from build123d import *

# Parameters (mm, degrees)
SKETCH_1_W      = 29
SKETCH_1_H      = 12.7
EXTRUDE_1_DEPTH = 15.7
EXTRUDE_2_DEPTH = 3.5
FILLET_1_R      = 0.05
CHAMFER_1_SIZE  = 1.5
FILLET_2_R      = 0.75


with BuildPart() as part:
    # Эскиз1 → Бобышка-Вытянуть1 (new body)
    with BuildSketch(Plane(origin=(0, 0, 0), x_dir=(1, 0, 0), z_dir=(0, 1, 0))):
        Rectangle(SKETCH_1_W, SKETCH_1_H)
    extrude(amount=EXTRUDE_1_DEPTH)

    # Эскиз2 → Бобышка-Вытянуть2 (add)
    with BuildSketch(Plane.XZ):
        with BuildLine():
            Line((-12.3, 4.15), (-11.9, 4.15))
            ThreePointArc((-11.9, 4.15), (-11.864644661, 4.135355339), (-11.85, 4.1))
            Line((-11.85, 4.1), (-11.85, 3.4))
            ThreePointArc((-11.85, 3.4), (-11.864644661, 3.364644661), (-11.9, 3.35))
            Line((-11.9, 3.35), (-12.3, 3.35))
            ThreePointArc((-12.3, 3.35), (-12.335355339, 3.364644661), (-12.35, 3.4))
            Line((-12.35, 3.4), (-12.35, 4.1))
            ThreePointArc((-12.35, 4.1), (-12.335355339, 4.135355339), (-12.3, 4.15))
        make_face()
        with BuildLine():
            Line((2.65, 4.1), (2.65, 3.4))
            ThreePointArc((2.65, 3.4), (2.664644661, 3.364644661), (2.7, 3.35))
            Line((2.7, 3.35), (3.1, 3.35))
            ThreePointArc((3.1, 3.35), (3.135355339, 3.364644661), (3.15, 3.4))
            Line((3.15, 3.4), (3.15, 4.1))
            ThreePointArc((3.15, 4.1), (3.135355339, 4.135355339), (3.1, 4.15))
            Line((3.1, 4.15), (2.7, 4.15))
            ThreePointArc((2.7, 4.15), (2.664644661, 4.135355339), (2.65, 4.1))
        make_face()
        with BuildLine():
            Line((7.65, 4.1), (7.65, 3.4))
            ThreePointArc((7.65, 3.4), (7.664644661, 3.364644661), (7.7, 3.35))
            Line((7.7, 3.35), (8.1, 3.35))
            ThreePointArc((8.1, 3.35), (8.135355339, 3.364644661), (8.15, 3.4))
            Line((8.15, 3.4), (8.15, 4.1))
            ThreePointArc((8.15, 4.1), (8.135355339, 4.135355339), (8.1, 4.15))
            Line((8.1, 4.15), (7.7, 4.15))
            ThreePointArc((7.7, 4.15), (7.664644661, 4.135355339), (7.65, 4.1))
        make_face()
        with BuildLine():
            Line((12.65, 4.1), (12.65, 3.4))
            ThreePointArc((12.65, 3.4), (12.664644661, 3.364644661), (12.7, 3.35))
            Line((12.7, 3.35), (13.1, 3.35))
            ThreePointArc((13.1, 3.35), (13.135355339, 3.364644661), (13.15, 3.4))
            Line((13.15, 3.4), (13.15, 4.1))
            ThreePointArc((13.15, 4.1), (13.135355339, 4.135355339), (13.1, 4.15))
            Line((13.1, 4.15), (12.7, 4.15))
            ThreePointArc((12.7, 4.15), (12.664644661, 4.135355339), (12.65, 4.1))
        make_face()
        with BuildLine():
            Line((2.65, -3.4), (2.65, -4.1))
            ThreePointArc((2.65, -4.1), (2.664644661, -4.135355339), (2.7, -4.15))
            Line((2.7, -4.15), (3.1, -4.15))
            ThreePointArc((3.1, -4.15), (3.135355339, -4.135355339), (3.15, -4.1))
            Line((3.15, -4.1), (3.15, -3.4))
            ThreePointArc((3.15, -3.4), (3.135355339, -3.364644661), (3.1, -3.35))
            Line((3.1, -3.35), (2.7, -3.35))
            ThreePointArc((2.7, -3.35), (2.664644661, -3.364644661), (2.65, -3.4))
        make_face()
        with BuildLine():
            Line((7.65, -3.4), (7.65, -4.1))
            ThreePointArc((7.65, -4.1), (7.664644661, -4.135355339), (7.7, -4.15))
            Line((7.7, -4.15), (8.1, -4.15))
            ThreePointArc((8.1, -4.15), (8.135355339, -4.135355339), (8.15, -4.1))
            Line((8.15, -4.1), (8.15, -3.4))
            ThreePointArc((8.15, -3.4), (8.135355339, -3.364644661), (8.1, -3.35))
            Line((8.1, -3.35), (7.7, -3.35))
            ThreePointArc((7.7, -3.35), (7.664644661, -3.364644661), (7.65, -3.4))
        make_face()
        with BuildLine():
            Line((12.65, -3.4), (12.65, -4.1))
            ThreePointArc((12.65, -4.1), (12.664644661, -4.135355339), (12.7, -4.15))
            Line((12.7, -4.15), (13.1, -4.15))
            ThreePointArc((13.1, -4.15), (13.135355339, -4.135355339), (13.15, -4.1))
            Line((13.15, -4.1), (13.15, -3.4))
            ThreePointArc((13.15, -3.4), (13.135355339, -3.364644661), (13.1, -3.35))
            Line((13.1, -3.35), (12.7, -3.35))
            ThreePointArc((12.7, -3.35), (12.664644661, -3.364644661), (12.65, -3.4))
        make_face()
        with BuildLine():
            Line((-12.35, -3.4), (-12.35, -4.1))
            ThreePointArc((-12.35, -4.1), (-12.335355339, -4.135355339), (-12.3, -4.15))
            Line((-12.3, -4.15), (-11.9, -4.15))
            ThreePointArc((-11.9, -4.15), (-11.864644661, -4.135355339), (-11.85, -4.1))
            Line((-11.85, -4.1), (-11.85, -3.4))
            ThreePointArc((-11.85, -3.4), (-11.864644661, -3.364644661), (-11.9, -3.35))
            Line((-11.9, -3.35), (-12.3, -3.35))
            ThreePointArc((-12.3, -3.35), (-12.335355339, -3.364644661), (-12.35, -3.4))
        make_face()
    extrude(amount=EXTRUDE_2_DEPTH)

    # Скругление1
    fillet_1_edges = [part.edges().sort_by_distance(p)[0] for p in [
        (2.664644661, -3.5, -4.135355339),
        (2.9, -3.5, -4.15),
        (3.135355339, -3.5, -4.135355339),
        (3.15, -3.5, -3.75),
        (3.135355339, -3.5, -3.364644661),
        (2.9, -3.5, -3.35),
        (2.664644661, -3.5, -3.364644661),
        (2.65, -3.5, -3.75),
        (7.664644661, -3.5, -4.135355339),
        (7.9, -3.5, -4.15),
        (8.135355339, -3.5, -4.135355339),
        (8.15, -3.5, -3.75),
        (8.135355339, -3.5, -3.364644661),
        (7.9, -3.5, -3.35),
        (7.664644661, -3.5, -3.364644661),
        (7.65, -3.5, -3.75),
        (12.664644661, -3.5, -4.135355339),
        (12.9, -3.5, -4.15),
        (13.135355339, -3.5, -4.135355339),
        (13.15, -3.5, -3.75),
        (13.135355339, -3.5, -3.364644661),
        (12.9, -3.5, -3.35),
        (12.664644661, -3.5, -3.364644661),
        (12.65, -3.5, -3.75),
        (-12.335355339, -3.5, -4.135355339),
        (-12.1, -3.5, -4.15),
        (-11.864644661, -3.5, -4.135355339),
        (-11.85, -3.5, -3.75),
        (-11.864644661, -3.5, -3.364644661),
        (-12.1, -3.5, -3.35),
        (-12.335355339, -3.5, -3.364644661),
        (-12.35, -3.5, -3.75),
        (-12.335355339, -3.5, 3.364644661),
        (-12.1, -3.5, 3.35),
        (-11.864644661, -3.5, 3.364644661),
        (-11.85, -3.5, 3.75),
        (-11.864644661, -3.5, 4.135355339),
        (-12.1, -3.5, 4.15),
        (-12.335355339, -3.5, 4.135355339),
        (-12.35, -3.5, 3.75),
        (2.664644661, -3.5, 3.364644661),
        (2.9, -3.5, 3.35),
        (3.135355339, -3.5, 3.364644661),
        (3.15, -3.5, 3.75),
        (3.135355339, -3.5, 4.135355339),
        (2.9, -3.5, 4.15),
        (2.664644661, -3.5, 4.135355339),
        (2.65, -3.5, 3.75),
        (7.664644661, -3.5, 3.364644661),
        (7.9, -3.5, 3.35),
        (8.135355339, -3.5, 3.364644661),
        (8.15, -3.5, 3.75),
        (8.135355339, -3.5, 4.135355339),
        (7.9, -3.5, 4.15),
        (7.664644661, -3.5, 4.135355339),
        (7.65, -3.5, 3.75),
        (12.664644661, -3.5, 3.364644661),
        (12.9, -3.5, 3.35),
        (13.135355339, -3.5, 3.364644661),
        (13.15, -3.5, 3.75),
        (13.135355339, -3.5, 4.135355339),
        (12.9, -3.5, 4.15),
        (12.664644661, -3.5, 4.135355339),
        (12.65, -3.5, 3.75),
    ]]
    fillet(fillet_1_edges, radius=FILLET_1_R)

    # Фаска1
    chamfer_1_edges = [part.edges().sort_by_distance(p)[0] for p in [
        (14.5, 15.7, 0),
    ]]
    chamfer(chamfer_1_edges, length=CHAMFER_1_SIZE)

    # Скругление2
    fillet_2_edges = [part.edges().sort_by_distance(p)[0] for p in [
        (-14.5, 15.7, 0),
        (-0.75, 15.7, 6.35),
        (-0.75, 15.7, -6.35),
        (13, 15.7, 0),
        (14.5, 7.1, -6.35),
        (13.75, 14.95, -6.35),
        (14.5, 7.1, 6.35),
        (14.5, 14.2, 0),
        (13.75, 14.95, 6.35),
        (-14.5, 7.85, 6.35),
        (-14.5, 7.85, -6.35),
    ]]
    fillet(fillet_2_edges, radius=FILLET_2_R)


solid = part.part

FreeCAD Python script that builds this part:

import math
import FreeCAD as App
import Part
import Sketcher

V = App.Vector
Q = App.Units.Quantity


def edges_at(feature, points):
    """Names of the edges that pass closest to the given points."""
    edges = feature.Shape.Edges
    near = lambda p: min(range(len(edges)), key=lambda i: edges[i].distToShape(Part.Vertex(*p))[0])
    return sorted({f"Edge{near(p) + 1}" for p in points})


def add_polygon(sketch, points):
    """Adds a closed chain of lines whose ends are joined by coincident constraints."""
    first, n = sketch.GeometryCount, len(points)
    for a, b in zip(points, points[1:] + points[:1]):
        sketch.addGeometry(Part.LineSegment(App.Vector(*a, 0), App.Vector(*b, 0)), False)
    for i in range(n):
        sketch.addConstraint(Sketcher.Constraint("Coincident", first + i, 2, first + (i + 1) % n, 1))

doc = App.newDocument("Part")
body = doc.addObject("PartDesign::Body", "Body")

# Sketch on XZ plane
sketch1 = doc.addObject("Sketcher::SketchObject", "Sketch")
body.addObject(sketch1)
sketch1.AttachmentSupport = (doc.XZ_Plane, [""])
sketch1.MapMode = "FlatFace"
add_polygon(sketch1, [(-14.5, -6.35), (-14.5, 6.35), (14.5, 6.35), (14.5, -6.35)])  # lines 0-3
sketch1.addConstraint([
    Sketcher.Constraint("Vertical", 0),
    Sketcher.Constraint("Horizontal", 1),
    Sketcher.Constraint("Vertical", 2),
    Sketcher.Constraint("Horizontal", 3),
    Sketcher.Constraint("Symmetric", 0, 2, 2, 2, -1, 1),
    Sketcher.Constraint("DistanceX", 1, 1, 1, 2, Q("29 mm")),
    Sketcher.Constraint("DistanceY", 0, 1, 0, 2, Q("12.7 mm")),
])
pad1 = doc.addObject("PartDesign::Pad", "Pad")
body.addObject(pad1)
pad1.Profile = sketch1
pad1.Length = 15.7
pad1.Reversed = True

# Sketch on XZ plane
sketch2 = doc.addObject("Sketcher::SketchObject", "Sketch001")
body.addObject(sketch2)
sketch2.AttachmentSupport = (doc.XZ_Plane, [""])
sketch2.MapMode = "FlatFace"
sketch2.addGeometry([
    Part.LineSegment(V(-11.9, 4.15, 0), V(-12.3, 4.15, 0)),  # 0
    Part.ArcOfCircle(Part.Circle(V(-12.3, 4.1, 0), V(0, 0, 1), 0.05), math.radians(90), math.radians(180)),  # 1
    Part.LineSegment(V(-12.35, 4.1, 0), V(-12.35, 3.4, 0)),  # 2
    Part.ArcOfCircle(Part.Circle(V(-12.3, 3.4, 0), V(0, 0, 1), 0.05), math.radians(180), math.radians(270)),  # 3
    Part.LineSegment(V(-12.3, 3.35, 0), V(-11.9, 3.35, 0)),  # 4
    Part.ArcOfCircle(Part.Circle(V(-11.9, 3.4, 0), V(0, 0, 1), 0.05), math.radians(-90), math.radians(0)),  # 5
    Part.LineSegment(V(-11.85, 3.4, 0), V(-11.85, 4.1, 0)),  # 6
    Part.ArcOfCircle(Part.Circle(V(-11.9, 4.1, 0), V(0, 0, 1), 0.05), math.radians(0), math.radians(90)),  # 7
    Part.LineSegment(V(2.65, 4.1, 0), V(2.65, 3.4, 0)),  # 8
    Part.ArcOfCircle(Part.Circle(V(2.7, 3.4, 0), V(0, 0, 1), 0.05), math.radians(180), math.radians(270)),  # 9
    Part.LineSegment(V(2.7, 3.35, 0), V(3.1, 3.35, 0)),  # 10
    Part.ArcOfCircle(Part.Circle(V(3.1, 3.4, 0), V(0, 0, 1), 0.05), math.radians(-90), math.radians(0)),  # 11
    Part.LineSegment(V(3.15, 3.4, 0), V(3.15, 4.1, 0)),  # 12
    Part.ArcOfCircle(Part.Circle(V(3.1, 4.1, 0), V(0, 0, 1), 0.05), math.radians(0), math.radians(90)),  # 13
    Part.LineSegment(V(3.1, 4.15, 0), V(2.7, 4.15, 0)),  # 14
    Part.ArcOfCircle(Part.Circle(V(2.7, 4.1, 0), V(0, 0, 1), 0.05), math.radians(90), math.radians(180)),  # 15
    Part.LineSegment(V(7.65, 4.1, 0), V(7.65, 3.4, 0)),  # 16
    Part.ArcOfCircle(Part.Circle(V(7.7, 3.4, 0), V(0, 0, 1), 0.05), math.radians(180), math.radians(270)),  # 17
    Part.LineSegment(V(7.7, 3.35, 0), V(8.1, 3.35, 0)),  # 18
    Part.ArcOfCircle(Part.Circle(V(8.1, 3.4, 0), V(0, 0, 1), 0.05), math.radians(-90), math.radians(0)),  # 19
    Part.LineSegment(V(8.15, 3.4, 0), V(8.15, 4.1, 0)),  # 20
    Part.ArcOfCircle(Part.Circle(V(8.1, 4.1, 0), V(0, 0, 1), 0.05), math.radians(0), math.radians(90)),  # 21
    Part.LineSegment(V(8.1, 4.15, 0), V(7.7, 4.15, 0)),  # 22
    Part.ArcOfCircle(Part.Circle(V(7.7, 4.1, 0), V(0, 0, 1), 0.05), math.radians(90), math.radians(180)),  # 23
    Part.LineSegment(V(12.65, 4.1, 0), V(12.65, 3.4, 0)),  # 24
    Part.ArcOfCircle(Part.Circle(V(12.7, 3.4, 0), V(0, 0, 1), 0.05), math.radians(180), math.radians(270)),  # 25
    Part.LineSegment(V(12.7, 3.35, 0), V(13.1, 3.35, 0)),  # 26
    Part.ArcOfCircle(Part.Circle(V(13.1, 3.4, 0), V(0, 0, 1), 0.05), math.radians(-90), math.radians(0)),  # 27
    Part.LineSegment(V(13.15, 3.4, 0), V(13.15, 4.1, 0)),  # 28
    Part.ArcOfCircle(Part.Circle(V(13.1, 4.1, 0), V(0, 0, 1), 0.05), math.radians(0), math.radians(90)),  # 29
    Part.LineSegment(V(13.1, 4.15, 0), V(12.7, 4.15, 0)),  # 30
    Part.ArcOfCircle(Part.Circle(V(12.7, 4.1, 0), V(0, 0, 1), 0.05), math.radians(90), math.radians(180)),  # 31
    Part.LineSegment(V(2.65, -3.4, 0), V(2.65, -4.1, 0)),  # 32
    Part.ArcOfCircle(Part.Circle(V(2.7, -4.1, 0), V(0, 0, 1), 0.05), math.radians(180), math.radians(270)),  # 33
    Part.LineSegment(V(2.7, -4.15, 0), V(3.1, -4.15, 0)),  # 34
    Part.ArcOfCircle(Part.Circle(V(3.1, -4.1, 0), V(0, 0, 1), 0.05), math.radians(-90), math.radians(0)),  # 35
    Part.LineSegment(V(3.15, -4.1, 0), V(3.15, -3.4, 0)),  # 36
    Part.ArcOfCircle(Part.Circle(V(3.1, -3.4, 0), V(0, 0, 1), 0.05), math.radians(0), math.radians(90)),  # 37
    Part.LineSegment(V(3.1, -3.35, 0), V(2.7, -3.35, 0)),  # 38
    Part.ArcOfCircle(Part.Circle(V(2.7, -3.4, 0), V(0, 0, 1), 0.05), math.radians(90), math.radians(180)),  # 39
    Part.LineSegment(V(7.65, -3.4, 0), V(7.65, -4.1, 0)),  # 40
    Part.ArcOfCircle(Part.Circle(V(7.7, -4.1, 0), V(0, 0, 1), 0.05), math.radians(180), math.radians(270)),  # 41
    Part.LineSegment(V(7.7, -4.15, 0), V(8.1, -4.15, 0)),  # 42
    Part.ArcOfCircle(Part.Circle(V(8.1, -4.1, 0), V(0, 0, 1), 0.05), math.radians(-90), math.radians(0)),  # 43
    Part.LineSegment(V(8.15, -4.1, 0), V(8.15, -3.4, 0)),  # 44
    Part.ArcOfCircle(Part.Circle(V(8.1, -3.4, 0), V(0, 0, 1), 0.05), math.radians(0), math.radians(90)),  # 45
    Part.LineSegment(V(8.1, -3.35, 0), V(7.7, -3.35, 0)),  # 46
    Part.ArcOfCircle(Part.Circle(V(7.7, -3.4, 0), V(0, 0, 1), 0.05), math.radians(90), math.radians(180)),  # 47
    Part.LineSegment(V(12.65, -3.4, 0), V(12.65, -4.1, 0)),  # 48
    Part.ArcOfCircle(Part.Circle(V(12.7, -4.1, 0), V(0, 0, 1), 0.05), math.radians(180), math.radians(270)),  # 49
    Part.LineSegment(V(12.7, -4.15, 0), V(13.1, -4.15, 0)),  # 50
    Part.ArcOfCircle(Part.Circle(V(13.1, -4.1, 0), V(0, 0, 1), 0.05), math.radians(-90), math.radians(0)),  # 51
    Part.LineSegment(V(13.15, -4.1, 0), V(13.15, -3.4, 0)),  # 52
    Part.ArcOfCircle(Part.Circle(V(13.1, -3.4, 0), V(0, 0, 1), 0.05), math.radians(0), math.radians(90)),  # 53
    Part.LineSegment(V(13.1, -3.35, 0), V(12.7, -3.35, 0)),  # 54
    Part.ArcOfCircle(Part.Circle(V(12.7, -3.4, 0), V(0, 0, 1), 0.05), math.radians(90), math.radians(180)),  # 55
    Part.LineSegment(V(-12.35, -3.4, 0), V(-12.35, -4.1, 0)),  # 56
    Part.ArcOfCircle(Part.Circle(V(-12.3, -4.1, 0), V(0, 0, 1), 0.05), math.radians(180), math.radians(270)),  # 57
    Part.LineSegment(V(-12.3, -4.15, 0), V(-11.9, -4.15, 0)),  # 58
    Part.ArcOfCircle(Part.Circle(V(-11.9, -4.1, 0), V(0, 0, 1), 0.05), math.radians(-90), math.radians(0)),  # 59
    Part.LineSegment(V(-11.85, -4.1, 0), V(-11.85, -3.4, 0)),  # 60
    Part.ArcOfCircle(Part.Circle(V(-11.9, -3.4, 0), V(0, 0, 1), 0.05), math.radians(0), math.radians(90)),  # 61
    Part.LineSegment(V(-11.9, -3.35, 0), V(-12.3, -3.35, 0)),  # 62
    Part.ArcOfCircle(Part.Circle(V(-12.3, -3.4, 0), V(0, 0, 1), 0.05), math.radians(90), math.radians(180)),  # 63
], False)
sketch2.addConstraint([
    Sketcher.Constraint("Tangent", 0, 2, 1, 1),
    Sketcher.Constraint("Tangent", 1, 2, 2, 1),
    Sketcher.Constraint("Tangent", 2, 2, 3, 1),
    Sketcher.Constraint("Tangent", 3, 2, 4, 1),
    Sketcher.Constraint("Tangent", 4, 2, 5, 1),
    Sketcher.Constraint("Tangent", 5, 2, 6, 1),
    Sketcher.Constraint("Tangent", 6, 2, 7, 1),
    Sketcher.Constraint("Tangent", 7, 2, 0, 1),
    Sketcher.Constraint("Tangent", 8, 2, 9, 1),
    Sketcher.Constraint("Tangent", 9, 2, 10, 1),
    Sketcher.Constraint("Tangent", 10, 2, 11, 1),
    Sketcher.Constraint("Tangent", 11, 2, 12, 1),
    Sketcher.Constraint("Tangent", 12, 2, 13, 1),
    Sketcher.Constraint("Tangent", 13, 2, 14, 1),
    Sketcher.Constraint("Tangent", 14, 2, 15, 1),
    Sketcher.Constraint("Tangent", 15, 2, 8, 1),
    Sketcher.Constraint("Tangent", 16, 2, 17, 1),
    Sketcher.Constraint("Tangent", 17, 2, 18, 1),
    Sketcher.Constraint("Tangent", 18, 2, 19, 1),
    Sketcher.Constraint("Tangent", 19, 2, 20, 1),
    Sketcher.Constraint("Tangent", 20, 2, 21, 1),
    Sketcher.Constraint("Tangent", 21, 2, 22, 1),
    Sketcher.Constraint("Tangent", 22, 2, 23, 1),
    Sketcher.Constraint("Tangent", 23, 2, 16, 1),
    Sketcher.Constraint("Tangent", 24, 2, 25, 1),
    Sketcher.Constraint("Tangent", 25, 2, 26, 1),
    Sketcher.Constraint("Tangent", 26, 2, 27, 1),
    Sketcher.Constraint("Tangent", 27, 2, 28, 1),
    Sketcher.Constraint("Tangent", 28, 2, 29, 1),
    Sketcher.Constraint("Tangent", 29, 2, 30, 1),
    Sketcher.Constraint("Tangent", 30, 2, 31, 1),
    Sketcher.Constraint("Tangent", 31, 2, 24, 1),
    Sketcher.Constraint("Tangent", 32, 2, 33, 1),
    Sketcher.Constraint("Tangent", 33, 2, 34, 1),
    Sketcher.Constraint("Tangent", 34, 2, 35, 1),
    Sketcher.Constraint("Tangent", 35, 2, 36, 1),
    Sketcher.Constraint("Tangent", 36, 2, 37, 1),
    Sketcher.Constraint("Tangent", 37, 2, 38, 1),
    Sketcher.Constraint("Tangent", 38, 2, 39, 1),
    Sketcher.Constraint("Tangent", 39, 2, 32, 1),
    Sketcher.Constraint("Tangent", 40, 2, 41, 1),
    Sketcher.Constraint("Tangent", 41, 2, 42, 1),
    Sketcher.Constraint("Tangent", 42, 2, 43, 1),
    Sketcher.Constraint("Tangent", 43, 2, 44, 1),
    Sketcher.Constraint("Tangent", 44, 2, 45, 1),
    Sketcher.Constraint("Tangent", 45, 2, 46, 1),
    Sketcher.Constraint("Tangent", 46, 2, 47, 1),
    Sketcher.Constraint("Tangent", 47, 2, 40, 1),
    Sketcher.Constraint("Tangent", 48, 2, 49, 1),
    Sketcher.Constraint("Tangent", 49, 2, 50, 1),
    Sketcher.Constraint("Tangent", 50, 2, 51, 1),
    Sketcher.Constraint("Tangent", 51, 2, 52, 1),
    Sketcher.Constraint("Tangent", 52, 2, 53, 1),
    Sketcher.Constraint("Tangent", 53, 2, 54, 1),
    Sketcher.Constraint("Tangent", 54, 2, 55, 1),
    Sketcher.Constraint("Tangent", 55, 2, 48, 1),
    Sketcher.Constraint("Tangent", 56, 2, 57, 1),
    Sketcher.Constraint("Tangent", 57, 2, 58, 1),
    Sketcher.Constraint("Tangent", 58, 2, 59, 1),
    Sketcher.Constraint("Tangent", 59, 2, 60, 1),
    Sketcher.Constraint("Tangent", 60, 2, 61, 1),
    Sketcher.Constraint("Tangent", 61, 2, 62, 1),
    Sketcher.Constraint("Tangent", 62, 2, 63, 1),
    Sketcher.Constraint("Tangent", 63, 2, 56, 1),
    Sketcher.Constraint("Horizontal", 0),
    Sketcher.Constraint("Vertical", 2),
    Sketcher.Constraint("Horizontal", 4),
    Sketcher.Constraint("Vertical", 6),
    Sketcher.Constraint("Vertical", 8),
    Sketcher.Constraint("Horizontal", 10),
    Sketcher.Constraint("Vertical", 12),
    Sketcher.Constraint("Horizontal", 14),
    Sketcher.Constraint("Vertical", 16),
    Sketcher.Constraint("Horizontal", 18),
    Sketcher.Constraint("Vertical", 20),
    Sketcher.Constraint("Horizontal", 22),
    Sketcher.Constraint("Vertical", 24),
    Sketcher.Constraint("Horizontal", 26),
    Sketcher.Constraint("Vertical", 28),
    Sketcher.Constraint("Horizontal", 30),
    Sketcher.Constraint("Vertical", 32),
    Sketcher.Constraint("Horizontal", 34),
    Sketcher.Constraint("Vertical", 36),
    Sketcher.Constraint("Horizontal", 38),
    Sketcher.Constraint("Vertical", 40),
    Sketcher.Constraint("Horizontal", 42),
    Sketcher.Constraint("Vertical", 44),
    Sketcher.Constraint("Horizontal", 46),
    Sketcher.Constraint("Vertical", 48),
    Sketcher.Constraint("Horizontal", 50),
    Sketcher.Constraint("Vertical", 52),
    Sketcher.Constraint("Horizontal", 54),
    Sketcher.Constraint("Vertical", 56),
    Sketcher.Constraint("Horizontal", 58),
    Sketcher.Constraint("Vertical", 60),
    Sketcher.Constraint("Horizontal", 62),
    Sketcher.Constraint("Equal", 1, 3),
    Sketcher.Constraint("Equal", 3, 5),
    Sketcher.Constraint("Equal", 5, 7),
    Sketcher.Constraint("Equal", 7, 9),
    Sketcher.Constraint("Equal", 9, 11),
    Sketcher.Constraint("Equal", 11, 13),
    Sketcher.Constraint("Equal", 13, 15),
    Sketcher.Constraint("Equal", 15, 17),
    Sketcher.Constraint("Equal", 17, 19),
    Sketcher.Constraint("Equal", 19, 21),
    Sketcher.Constraint("Equal", 21, 23),
    Sketcher.Constraint("Equal", 23, 25),
    Sketcher.Constraint("Equal", 25, 27),
    Sketcher.Constraint("Equal", 27, 29),
    Sketcher.Constraint("Equal", 29, 31),
    Sketcher.Constraint("Equal", 31, 33),
    Sketcher.Constraint("Equal", 33, 35),
    Sketcher.Constraint("Equal", 35, 37),
    Sketcher.Constraint("Equal", 37, 39),
    Sketcher.Constraint("Equal", 39, 41),
    Sketcher.Constraint("Equal", 41, 43),
    Sketcher.Constraint("Equal", 43, 45),
    Sketcher.Constraint("Equal", 45, 47),
    Sketcher.Constraint("Equal", 47, 49),
    Sketcher.Constraint("Equal", 49, 51),
    Sketcher.Constraint("Equal", 51, 53),
    Sketcher.Constraint("Equal", 53, 55),
    Sketcher.Constraint("Equal", 55, 57),
    Sketcher.Constraint("Equal", 57, 59),
    Sketcher.Constraint("Equal", 59, 61),
    Sketcher.Constraint("Equal", 61, 63),
    Sketcher.Constraint("Symmetric", 15, 3, 33, 3, -1),
    Sketcher.Constraint("Symmetric", 11, 3, 37, 3, -1),
    Sketcher.Constraint("Symmetric", 23, 3, 41, 3, -1),
    Sketcher.Constraint("Symmetric", 19, 3, 45, 3, -1),
    Sketcher.Constraint("Symmetric", 31, 3, 49, 3, -1),
    Sketcher.Constraint("Symmetric", 27, 3, 53, 3, -1),
    Sketcher.Constraint("Symmetric", 1, 3, 57, 3, -1),
    Sketcher.Constraint("Symmetric", 5, 3, 61, 3, -1),
    Sketcher.Constraint("Horizontal", 5, 3, 9, 3),
    Sketcher.Constraint("Horizontal", 7, 3, 13, 3),
    Sketcher.Constraint("Horizontal", 11, 3, 17, 3),
    Sketcher.Constraint("Horizontal", 15, 3, 21, 3),
    Sketcher.Constraint("Horizontal", 19, 3, 25, 3),
    Sketcher.Constraint("Horizontal", 23, 3, 29, 3),
    Sketcher.Constraint("Equal", 4, 10),
    Sketcher.Constraint("Equal", 14, 18),
    Sketcher.Constraint("Equal", 22, 26),
    Sketcher.Constraint("Radius", 1, Q("0.05 mm")),
    Sketcher.Constraint("DistanceX", 0, 2, 0, 1, Q("0.4 mm")),
    Sketcher.Constraint("DistanceY", 2, 2, 2, 1, Q("0.7 mm")),
    Sketcher.Constraint("DistanceX", 1, 3, -1, 1, Q("12.3 mm")),
    Sketcher.Constraint("DistanceY", -1, 1, 1, 3, Q("4.1 mm")),
    Sketcher.Constraint("DistanceX", -1, 1, 9, 3, Q("2.7 mm")),
    Sketcher.Constraint("DistanceX", -1, 1, 17, 3, Q("7.7 mm")),
    Sketcher.Constraint("DistanceX", -1, 1, 25, 3, Q("12.7 mm")),
])
pad2 = doc.addObject("PartDesign::Pad", "Pad001")
body.addObject(pad2)
pad2.Profile = sketch2
pad2.Length = 3.5
doc.recompute()

fillet = doc.addObject("PartDesign::Fillet", "Fillet")
body.addObject(fillet)
fillet.Base = (pad2, edges_at(pad2, [
    (2.665, -3.5, -4.135),
    (2.9, -3.5, -4.15),
    (3.135, -3.5, -4.135),
    (3.15, -3.5, -3.75),
    (3.135, -3.5, -3.365),
    (2.9, -3.5, -3.35),
    (2.665, -3.5, -3.365),
    (2.65, -3.5, -3.75),
    (7.665, -3.5, -4.135),
    (7.9, -3.5, -4.15),
    (8.135, -3.5, -4.135),
    (8.15, -3.5, -3.75),
    (8.135, -3.5, -3.365),
    (7.9, -3.5, -3.35),
    (7.665, -3.5, -3.365),
    (7.65, -3.5, -3.75),
    (12.665, -3.5, -4.135),
    (12.9, -3.5, -4.15),
    (13.135, -3.5, -4.135),
    (13.15, -3.5, -3.75),
    (13.135, -3.5, -3.365),
    (12.9, -3.5, -3.35),
    (12.665, -3.5, -3.365),
    (12.65, -3.5, -3.75),
    (-12.335, -3.5, -4.135),
    (-12.1, -3.5, -4.15),
    (-11.865, -3.5, -4.135),
    (-11.85, -3.5, -3.75),
    (-11.865, -3.5, -3.365),
    (-12.1, -3.5, -3.35),
    (-12.335, -3.5, -3.365),
    (-12.35, -3.5, -3.75),
    (-12.335, -3.5, 3.365),
    (-12.1, -3.5, 3.35),
    (-11.865, -3.5, 3.365),
    (-11.85, -3.5, 3.75),
    (-11.865, -3.5, 4.135),
    (-12.1, -3.5, 4.15),
    (-12.335, -3.5, 4.135),
    (-12.35, -3.5, 3.75),
    (2.665, -3.5, 3.365),
    (2.9, -3.5, 3.35),
    (3.135, -3.5, 3.365),
    (3.15, -3.5, 3.75),
    (3.135, -3.5, 4.135),
    (2.9, -3.5, 4.15),
    (2.665, -3.5, 4.135),
    (2.65, -3.5, 3.75),
    (7.665, -3.5, 3.365),
    (7.9, -3.5, 3.35),
    (8.135, -3.5, 3.365),
    (8.15, -3.5, 3.75),
    (8.135, -3.5, 4.135),
    (7.9, -3.5, 4.15),
    (7.665, -3.5, 4.135),
    (7.65, -3.5, 3.75),
    (12.665, -3.5, 3.365),
    (12.9, -3.5, 3.35),
    (13.135, -3.5, 3.365),
    (13.15, -3.5, 3.75),
    (13.135, -3.5, 4.135),
    (12.9, -3.5, 4.15),
    (12.665, -3.5, 4.135),
    (12.65, -3.5, 3.75),
]))
fillet.Radius = 0.05
doc.recompute()

chamfer = doc.addObject("PartDesign::Chamfer", "Chamfer")
body.addObject(chamfer)
chamfer.Base = (fillet, edges_at(fillet, [(14.5, 15.7, 0)]))
chamfer.Size = 1.5
doc.recompute()

fillet2 = doc.addObject("PartDesign::Fillet", "Fillet001")
body.addObject(fillet2)
fillet2.Base = (chamfer, edges_at(chamfer, [
    (-14.5, 15.7, 0),
    (-0.75, 15.7, 6.35),
    (-0.75, 15.7, -6.35),
    (13, 15.7, 0),
    (14.5, 7.1, -6.35),
    (13.75, 14.95, -6.35),
    (14.5, 7.1, 6.35),
    (14.5, 14.2, 0),
    (13.75, 14.95, 6.35),
    (-14.5, 7.85, 6.35),
    (-14.5, 7.85, -6.35),
]))
fillet2.Radius = 0.75

doc.recompute()
